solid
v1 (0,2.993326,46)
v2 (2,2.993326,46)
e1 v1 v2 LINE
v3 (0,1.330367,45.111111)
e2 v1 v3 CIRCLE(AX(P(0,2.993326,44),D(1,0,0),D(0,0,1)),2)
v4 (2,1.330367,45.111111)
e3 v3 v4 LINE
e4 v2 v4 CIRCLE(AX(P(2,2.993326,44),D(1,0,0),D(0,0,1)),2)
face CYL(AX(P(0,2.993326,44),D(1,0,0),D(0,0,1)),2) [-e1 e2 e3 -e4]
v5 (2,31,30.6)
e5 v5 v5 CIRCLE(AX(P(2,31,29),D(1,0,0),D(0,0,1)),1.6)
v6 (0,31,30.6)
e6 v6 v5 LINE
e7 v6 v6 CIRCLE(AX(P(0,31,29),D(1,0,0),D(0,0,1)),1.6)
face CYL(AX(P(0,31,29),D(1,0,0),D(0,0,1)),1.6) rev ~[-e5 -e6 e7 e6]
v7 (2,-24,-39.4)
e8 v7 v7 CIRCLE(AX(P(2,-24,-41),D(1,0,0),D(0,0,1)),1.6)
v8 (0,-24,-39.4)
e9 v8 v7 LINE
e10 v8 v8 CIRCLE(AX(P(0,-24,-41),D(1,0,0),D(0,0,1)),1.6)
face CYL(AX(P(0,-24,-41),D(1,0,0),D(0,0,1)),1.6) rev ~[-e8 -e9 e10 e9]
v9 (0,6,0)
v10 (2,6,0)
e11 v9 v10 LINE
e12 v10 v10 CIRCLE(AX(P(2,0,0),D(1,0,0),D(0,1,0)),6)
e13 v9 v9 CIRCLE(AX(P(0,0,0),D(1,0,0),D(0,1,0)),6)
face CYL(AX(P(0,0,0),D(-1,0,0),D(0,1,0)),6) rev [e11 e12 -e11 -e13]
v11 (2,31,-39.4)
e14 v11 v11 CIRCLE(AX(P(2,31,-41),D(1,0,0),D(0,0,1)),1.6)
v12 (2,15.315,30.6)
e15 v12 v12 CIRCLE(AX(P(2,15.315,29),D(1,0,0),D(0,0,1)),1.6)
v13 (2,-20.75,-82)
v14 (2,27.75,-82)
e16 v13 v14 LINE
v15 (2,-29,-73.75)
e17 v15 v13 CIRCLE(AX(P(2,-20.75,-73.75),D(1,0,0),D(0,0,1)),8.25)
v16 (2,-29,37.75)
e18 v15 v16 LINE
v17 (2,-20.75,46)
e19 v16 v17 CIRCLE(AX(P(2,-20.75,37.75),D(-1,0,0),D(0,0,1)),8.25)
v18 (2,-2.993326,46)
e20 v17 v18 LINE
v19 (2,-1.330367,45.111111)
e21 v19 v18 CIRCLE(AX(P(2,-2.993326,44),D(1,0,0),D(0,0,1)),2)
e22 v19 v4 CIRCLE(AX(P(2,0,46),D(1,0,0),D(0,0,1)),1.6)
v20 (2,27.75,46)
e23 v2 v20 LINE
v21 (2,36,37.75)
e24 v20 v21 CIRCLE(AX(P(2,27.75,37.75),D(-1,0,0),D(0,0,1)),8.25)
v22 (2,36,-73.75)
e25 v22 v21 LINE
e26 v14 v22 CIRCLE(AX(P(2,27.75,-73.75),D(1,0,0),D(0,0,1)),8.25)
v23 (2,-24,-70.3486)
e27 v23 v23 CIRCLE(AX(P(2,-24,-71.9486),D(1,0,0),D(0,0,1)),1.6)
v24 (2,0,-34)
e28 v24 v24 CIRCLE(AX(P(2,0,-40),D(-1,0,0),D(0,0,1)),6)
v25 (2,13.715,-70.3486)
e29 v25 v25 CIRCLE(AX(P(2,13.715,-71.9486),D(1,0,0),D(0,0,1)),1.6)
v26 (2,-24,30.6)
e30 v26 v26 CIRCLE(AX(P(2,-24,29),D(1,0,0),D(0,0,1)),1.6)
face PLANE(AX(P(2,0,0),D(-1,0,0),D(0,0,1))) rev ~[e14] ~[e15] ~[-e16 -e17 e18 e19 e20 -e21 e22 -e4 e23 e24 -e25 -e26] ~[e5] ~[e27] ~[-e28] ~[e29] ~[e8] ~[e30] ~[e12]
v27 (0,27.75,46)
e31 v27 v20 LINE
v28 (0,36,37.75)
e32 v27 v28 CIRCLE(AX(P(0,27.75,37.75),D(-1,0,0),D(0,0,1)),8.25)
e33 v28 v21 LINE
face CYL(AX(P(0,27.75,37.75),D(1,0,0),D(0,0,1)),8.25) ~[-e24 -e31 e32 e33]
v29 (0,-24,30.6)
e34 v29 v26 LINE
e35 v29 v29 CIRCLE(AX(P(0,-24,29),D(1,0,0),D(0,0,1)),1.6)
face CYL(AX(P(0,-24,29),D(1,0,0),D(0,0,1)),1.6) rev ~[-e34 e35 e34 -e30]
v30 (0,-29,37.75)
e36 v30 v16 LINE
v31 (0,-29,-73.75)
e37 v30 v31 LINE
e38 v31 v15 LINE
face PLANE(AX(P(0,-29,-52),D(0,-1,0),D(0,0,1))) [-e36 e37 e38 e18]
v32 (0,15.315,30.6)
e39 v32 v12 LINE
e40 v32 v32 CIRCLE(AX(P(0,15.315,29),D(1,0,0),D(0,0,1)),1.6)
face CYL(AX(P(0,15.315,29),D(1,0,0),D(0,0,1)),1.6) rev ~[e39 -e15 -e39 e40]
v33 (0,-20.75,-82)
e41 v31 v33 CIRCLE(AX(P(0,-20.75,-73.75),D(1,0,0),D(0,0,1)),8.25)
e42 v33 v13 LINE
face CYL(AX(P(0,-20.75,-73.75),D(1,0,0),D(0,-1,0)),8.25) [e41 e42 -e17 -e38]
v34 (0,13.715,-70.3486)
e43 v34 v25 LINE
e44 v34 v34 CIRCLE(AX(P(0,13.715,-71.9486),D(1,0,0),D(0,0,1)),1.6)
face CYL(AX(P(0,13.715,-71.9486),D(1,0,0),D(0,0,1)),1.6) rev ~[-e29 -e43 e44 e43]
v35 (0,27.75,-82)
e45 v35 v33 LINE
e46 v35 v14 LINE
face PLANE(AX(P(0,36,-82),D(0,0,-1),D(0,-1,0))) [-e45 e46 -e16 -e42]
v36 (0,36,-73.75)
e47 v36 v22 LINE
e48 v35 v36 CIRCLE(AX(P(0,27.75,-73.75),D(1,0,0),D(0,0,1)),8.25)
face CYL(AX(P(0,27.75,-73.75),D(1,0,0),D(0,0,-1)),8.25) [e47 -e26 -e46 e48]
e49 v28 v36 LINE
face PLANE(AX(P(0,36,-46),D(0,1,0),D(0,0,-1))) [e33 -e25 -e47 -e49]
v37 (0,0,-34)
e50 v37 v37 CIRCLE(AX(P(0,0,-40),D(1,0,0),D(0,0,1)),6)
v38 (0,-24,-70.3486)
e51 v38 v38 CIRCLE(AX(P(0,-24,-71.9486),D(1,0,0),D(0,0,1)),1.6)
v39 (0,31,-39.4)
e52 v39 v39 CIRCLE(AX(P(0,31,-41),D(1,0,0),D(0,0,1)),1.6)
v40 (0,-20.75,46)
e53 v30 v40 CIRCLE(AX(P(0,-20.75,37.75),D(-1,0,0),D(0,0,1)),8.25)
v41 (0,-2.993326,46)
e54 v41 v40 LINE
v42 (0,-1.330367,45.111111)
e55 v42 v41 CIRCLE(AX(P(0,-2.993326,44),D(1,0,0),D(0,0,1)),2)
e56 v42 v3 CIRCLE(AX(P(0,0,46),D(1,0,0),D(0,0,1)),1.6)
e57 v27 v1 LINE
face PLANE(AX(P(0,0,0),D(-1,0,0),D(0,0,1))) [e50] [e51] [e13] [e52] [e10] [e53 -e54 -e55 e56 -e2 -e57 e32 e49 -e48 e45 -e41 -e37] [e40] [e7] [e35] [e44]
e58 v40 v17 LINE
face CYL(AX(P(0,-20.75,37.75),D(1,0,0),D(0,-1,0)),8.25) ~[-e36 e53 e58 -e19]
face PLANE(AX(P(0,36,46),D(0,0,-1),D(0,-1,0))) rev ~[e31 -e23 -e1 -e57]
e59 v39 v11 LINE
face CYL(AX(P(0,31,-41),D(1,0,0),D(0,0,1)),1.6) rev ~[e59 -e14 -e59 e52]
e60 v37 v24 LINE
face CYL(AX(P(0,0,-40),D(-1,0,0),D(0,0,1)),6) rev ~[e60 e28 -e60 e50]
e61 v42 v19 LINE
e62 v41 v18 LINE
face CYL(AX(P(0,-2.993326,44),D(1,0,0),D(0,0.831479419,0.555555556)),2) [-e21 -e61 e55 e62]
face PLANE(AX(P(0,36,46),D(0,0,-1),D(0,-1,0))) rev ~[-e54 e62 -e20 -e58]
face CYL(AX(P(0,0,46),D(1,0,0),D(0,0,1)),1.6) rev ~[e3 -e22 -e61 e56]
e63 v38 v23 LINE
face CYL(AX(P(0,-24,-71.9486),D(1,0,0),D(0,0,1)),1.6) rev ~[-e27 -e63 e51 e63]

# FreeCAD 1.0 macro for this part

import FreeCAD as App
import Part
import Sketcher

V = App.Vector


def edges_at(feature, points):
    """Names of the edges that pass closest to the given points."""
    edges = feature.Shape.Edges
    near = lambda p: min(range(len(edges)), key=lambda i: edges[i].distToShape(Part.Vertex(*p))[0])
    return sorted({f"Edge{near(p) + 1}" for p in points})


def add_polygon(sketch, points):
    """Adds a closed chain of lines whose ends are joined by coincident constraints."""
    first, n = sketch.GeometryCount, len(points)
    for a, b in zip(points, points[1:] + points[:1]):
        sketch.addGeometry(Part.LineSegment(App.Vector(*a, 0), App.Vector(*b, 0)), False)
    for i in range(n):
        sketch.addConstraint(Sketcher.Constraint("Coincident", first + i, 2, first + (i + 1) % n, 1))

doc = App.newDocument("Part")
params = doc.addObject("Spreadsheet::Sheet", "Params")
for row, (alias, value) in enumerate([
    ("sketch1_diameter", "12 mm"),
    ("sketch1_width", "65 mm"),
    ("sketch1_height", "80 mm"),
    ("pad1_length", "2 mm"),
    ("sketch2_diameter", "3.2 mm"),
    ("hole_diameter", "3.2 mm"),
    ("hole_depth", "43.75 mm"),
    ("sketch3_height", "6 mm"),
    ("sketch3_width", "65 mm"),
    ("pad2_length", "2 mm"),
    ("sketch4_diameter", "12 mm"),
    ("pocket1_length", "2 mm"),
    ("sketch5_height", "12 mm"),
    ("sketch5_height2", "30 mm"),
    ("sketch5_width", "65 mm"),
    ("pad3_length", "2 mm"),
    ("sketch6_diameter", "3.2 mm"),
    ("hole2_diameter", "3.2 mm"),
    ("hole2_depth", "43.75 mm"),
    ("fillet_radius", "8.25 mm"),
    ("sketch7_diameter", "3.2 mm"),
    ("hole3_diameter", "3.2 mm"),
    ("hole3_depth", "43.75 mm"),
    ("fillet2_radius", "2 mm"),
], start=1):
    params.set(f"A{row}", alias)
    params.set(f"B{row}", "=" + value)
    params.setAlias(f"B{row}", alias)

body = doc.addObject("PartDesign::Body", "Body")

sketch1 = body.newObject("Sketcher::SketchObject", "Sketch")
sketch1.AttachmentSupport = (doc.getObject("YZ_Plane"), [""])
sketch1.MapMode = "FlatFace"
add_polygon(sketch1, [(-29, -46), (36, -46), (36, 34), (-29, 34)])
sketch1.addGeometry(Part.Circle(V(0, 0, 0), V(0, 0, 1), 6), False)
sketch1.addConstraint([
    Sketcher.Constraint("Horizontal", 0),
    Sketcher.Constraint("Vertical", 1),
    Sketcher.Constraint("Horizontal", 2),
    Sketcher.Constraint("Vertical", 3),
    Sketcher.Constraint("Coincident", 4, 3, -1, 1),
    Sketcher.Constraint("Diameter", 4, 12.0),
    Sketcher.Constraint("DistanceX", 0, 1, 0, 2, 65.0),
    Sketcher.Constraint("DistanceY", 1, 1, 1, 2, 80.0),
    Sketcher.Constraint("DistanceX", -1, 1, 0, 2, 36.0),
    Sketcher.Constraint("DistanceY", 0, 2, -1, 1, 46.0),
])
sketch1.setExpression("Constraints[9]", "Params.sketch1_diameter")
sketch1.setExpression("Constraints[10]", "Params.sketch1_width")
sketch1.setExpression("Constraints[11]", "Params.sketch1_height")
pad1 = body.newObject("PartDesign::Pad", "Pad")
pad1.Profile = sketch1
pad1.setExpression("Length", "Params.pad1_length")

sketch2 = body.newObject("Sketcher::SketchObject", "Sketch001")
sketch2.AttachmentSupport = (doc.getObject("YZ_Plane"), [""])
sketch2.MapMode = "FlatFace"
sketch2.addGeometry([
    Part.Circle(V(31, -41, 0), V(0, 0, 1), 1.6),
    Part.Circle(V(31, 29, 0), V(0, 0, 1), 1.6),
    Part.Circle(V(-24, 29, 0), V(0, 0, 1), 1.6),
    Part.Circle(V(-24, -41, 0), V(0, 0, 1), 1.6),
], False)
sketch2.addConstraint([
    Sketcher.Constraint("Equal", 0, 1),
    Sketcher.Constraint("Equal", 1, 2),
    Sketcher.Constraint("Equal", 2, 3),
    Sketcher.Constraint("Horizontal", 1, 3, 2, 3),
    Sketcher.Constraint("Horizontal", 0, 3, 3, 3),
    Sketcher.Constraint("Vertical", 0, 3, 1, 3),
    Sketcher.Constraint("Vertical", 2, 3, 3, 3),
    Sketcher.Constraint("Diameter", 0, 3.2),
    Sketcher.Constraint("DistanceX", -1, 1, 0, 3, 31.0),
    Sketcher.Constraint("DistanceY", 0, 3, -1, 1, 41.0),
    Sketcher.Constraint("DistanceY", -1, 1, 1, 3, 29.0),
    Sketcher.Constraint("DistanceX", 2, 3, -1, 1, 24.0),
])
sketch2.setExpression("Constraints[7]", "Params.sketch2_diameter")
doc.recompute()
hole = body.newObject("PartDesign::Hole", "Hole")
hole.Profile = sketch2
hole.ThreadType = "None"
hole.setExpression("Diameter", "Params.hole_diameter")
hole.DepthType = "Dimension"
hole.setExpression("Depth", "Params.hole_depth")
hole.DrillPoint = "Angled"
hole.DrillPointAngle = 118
hole.Reversed = True

sketch3 = body.newObject("Sketcher::SketchObject", "Sketch002")
sketch3.AttachmentSupport = (doc.getObject("YZ_Plane"), [""])
sketch3.MapMode = "FlatFace"
add_polygon(sketch3, [(-29, -46), (36, -46), (36, -52), (-29, -52)])
sketch3.addConstraint([
    Sketcher.Constraint("Horizontal", 0),
    Sketcher.Constraint("Vertical", 1),
    Sketcher.Constraint("Horizontal", 2),
    Sketcher.Constraint("Vertical", 3),
    Sketcher.Constraint("DistanceY", 1, 2, 1, 1, 6.0),
    Sketcher.Constraint("DistanceX", 0, 1, 0, 2, 65.0),
    Sketcher.Constraint("DistanceX", -1, 1, 0, 2, 36.0),
    Sketcher.Constraint("DistanceY", 0, 2, -1, 1, 46.0),
])
sketch3.setExpression("Constraints[8]", "Params.sketch3_height")
sketch3.setExpression("Constraints[9]", "Params.sketch3_width")
pad2 = body.newObject("PartDesign::Pad", "Pad001")
pad2.Profile = sketch3
pad2.setExpression("Length", "Params.pad2_length")

sketch4 = body.newObject("Sketcher::SketchObject", "Sketch003")
sketch4.AttachmentSupport = (doc.getObject("YZ_Plane"), [""])
sketch4.MapMode = "FlatFace"
sketch4.addGeometry(Part.Circle(V(0, -40, 0), V(0, 0, 1), 6), False)
sketch4.addConstraint([
    Sketcher.Constraint("PointOnObject", 0, 3, -2),
    Sketcher.Constraint("Diameter", 0, 12.0),
    Sketcher.Constraint("DistanceY", 0, 3, -1, 1, 40.0),
])
sketch4.setExpression("Constraints[1]", "Params.sketch4_diameter")
pocket1 = body.newObject("PartDesign::Pocket", "Pocket")
pocket1.Profile = sketch4
pocket1.setExpression("Length", "Params.pocket1_length")
pocket1.Reversed = True

sketch5 = body.newObject("Sketcher::SketchObject", "Sketch004")
sketch5.AttachmentSupport = (doc.getObject("YZ_Plane"), [""])
sketch5.MapMode = "FlatFace"
add_polygon(sketch5, [(36, 46), (36, 34), (-29, 34), (-29, 46)])
add_polygon(sketch5, [(36, -52), (36, -82), (-29, -82), (-29, -52)])
sketch5.addConstraint([
    Sketcher.Constraint("Vertical", 0),
    Sketcher.Constraint("Horizontal", 1),
    Sketcher.Constraint("Vertical", 2),
    Sketcher.Constraint("Horizontal", 3),
    Sketcher.Constraint("Vertical", 4),
    Sketcher.Constraint("Horizontal", 5),
    Sketcher.Constraint("Vertical", 6),
    Sketcher.Constraint("Horizontal", 7),
    Sketcher.Constraint("Vertical", 3, 2, 4, 2),
    Sketcher.Constraint("Vertical", 2, 2, 5, 2),
    Sketcher.Constraint("DistanceY", 0, 2, 0, 1, 12.0),
    Sketcher.Constraint("DistanceY", 4, 2, 4, 1, 30.0),
    Sketcher.Constraint("DistanceX", 1, 2, 1, 1, 65.0),
    Sketcher.Constraint("DistanceX", -1, 1, 0, 2, 36.0),
    Sketcher.Constraint("DistanceY", -1, 1, 0, 2, 34.0),
    Sketcher.Constraint("DistanceY", 4, 2, -1, 1, 82.0),
])
sketch5.setExpression("Constraints[18]", "Params.sketch5_height")
sketch5.setExpression("Constraints[19]", "Params.sketch5_height2")
sketch5.setExpression("Constraints[20]", "Params.sketch5_width")
pad3 = body.newObject("PartDesign::Pad", "Pad002")
pad3.Profile = sketch5
pad3.setExpression("Length", "Params.pad3_length")

sketch6 = body.newObject("Sketcher::SketchObject", "Sketch005")
sketch6.AttachmentSupport = (doc.getObject("YZ_Plane"), [""])
sketch6.MapMode = "FlatFace"
sketch6.addGeometry([
    Part.Circle(V(-24, -71.9, 0), V(0, 0, 1), 1.6),
    Part.Circle(V(13.7, -71.9, 0), V(0, 0, 1), 1.6),
    Part.Circle(V(15.3, 29, 0), V(0, 0, 1), 1.6),
], False)
sketch6.addConstraint([
    Sketcher.Constraint("Equal", 0, 1),
    Sketcher.Constraint("Equal", 1, 2),
    Sketcher.Constraint("Horizontal", 0, 3, 1, 3),
    Sketcher.Constraint("Diameter", 0, 3.2),
    Sketcher.Constraint("DistanceX", 0, 3, -1, 1, 24.0),
    Sketcher.Constraint("DistanceY", -1, 1, 2, 3, 29.0),
    Sketcher.Constraint("DistanceX", 1, 3, 2, 3, 1.6),
    Sketcher.Constraint("DistanceX", -1, 1, 1, 3, 13.715),
    Sketcher.Constraint("DistanceY", 0, 3, -1, 1, 71.9486),
])
sketch6.setExpression("Constraints[3]", "Params.sketch6_diameter")
doc.recompute()
hole2 = body.newObject("PartDesign::Hole", "Hole001")
hole2.Profile = sketch6
hole2.ThreadType = "None"
hole2.setExpression("Diameter", "Params.hole2_diameter")
hole2.DepthType = "Dimension"
hole2.setExpression("Depth", "Params.hole2_depth")
hole2.DrillPoint = "Angled"
hole2.DrillPointAngle = 118
hole2.Reversed = True
doc.recompute()

fillet = body.newObject("PartDesign::Fillet", "Fillet")
fillet.Base = (hole2, edges_at(hole2, [
    (1, 36, -82),
    (1, -29, -82),
    (1, -29, 46),
    (1, 36, 46),
]))
fillet.setExpression("Radius", "Params.fillet_radius")

sketch7 = body.newObject("Sketcher::SketchObject", "Sketch006")
sketch7.AttachmentSupport = (doc.getObject("YZ_Plane"), [""])
sketch7.MapMode = "FlatFace"
sketch7.addGeometry(Part.Circle(V(0, 46, 0), V(0, 0, 1), 1.6), False)
sketch7.addConstraint([
    Sketcher.Constraint("PointOnObject", 0, 3, -2),
    Sketcher.Constraint("Diameter", 0, 3.2),
    Sketcher.Constraint("DistanceY", -1, 1, 0, 3, 46.0),
])
sketch7.setExpression("Constraints[1]", "Params.sketch7_diameter")
doc.recompute()
hole3 = body.newObject("PartDesign::Hole", "Hole002")
hole3.Profile = sketch7
hole3.ThreadType = "None"
hole3.setExpression("Diameter", "Params.hole3_diameter")
hole3.DepthType = "Dimension"
hole3.setExpression("Depth", "Params.hole3_depth")
hole3.DrillPoint = "Angled"
hole3.DrillPointAngle = 118
hole3.Reversed = True
doc.recompute()

fillet2 = body.newObject("PartDesign::Fillet", "Fillet001")
fillet2.Base = (hole3, edges_at(hole3, [(1, 1.6, 46), (1, -1.6, 46)]))
fillet2.setExpression("Radius", "Params.fillet2_radius")

doc.recompute()
